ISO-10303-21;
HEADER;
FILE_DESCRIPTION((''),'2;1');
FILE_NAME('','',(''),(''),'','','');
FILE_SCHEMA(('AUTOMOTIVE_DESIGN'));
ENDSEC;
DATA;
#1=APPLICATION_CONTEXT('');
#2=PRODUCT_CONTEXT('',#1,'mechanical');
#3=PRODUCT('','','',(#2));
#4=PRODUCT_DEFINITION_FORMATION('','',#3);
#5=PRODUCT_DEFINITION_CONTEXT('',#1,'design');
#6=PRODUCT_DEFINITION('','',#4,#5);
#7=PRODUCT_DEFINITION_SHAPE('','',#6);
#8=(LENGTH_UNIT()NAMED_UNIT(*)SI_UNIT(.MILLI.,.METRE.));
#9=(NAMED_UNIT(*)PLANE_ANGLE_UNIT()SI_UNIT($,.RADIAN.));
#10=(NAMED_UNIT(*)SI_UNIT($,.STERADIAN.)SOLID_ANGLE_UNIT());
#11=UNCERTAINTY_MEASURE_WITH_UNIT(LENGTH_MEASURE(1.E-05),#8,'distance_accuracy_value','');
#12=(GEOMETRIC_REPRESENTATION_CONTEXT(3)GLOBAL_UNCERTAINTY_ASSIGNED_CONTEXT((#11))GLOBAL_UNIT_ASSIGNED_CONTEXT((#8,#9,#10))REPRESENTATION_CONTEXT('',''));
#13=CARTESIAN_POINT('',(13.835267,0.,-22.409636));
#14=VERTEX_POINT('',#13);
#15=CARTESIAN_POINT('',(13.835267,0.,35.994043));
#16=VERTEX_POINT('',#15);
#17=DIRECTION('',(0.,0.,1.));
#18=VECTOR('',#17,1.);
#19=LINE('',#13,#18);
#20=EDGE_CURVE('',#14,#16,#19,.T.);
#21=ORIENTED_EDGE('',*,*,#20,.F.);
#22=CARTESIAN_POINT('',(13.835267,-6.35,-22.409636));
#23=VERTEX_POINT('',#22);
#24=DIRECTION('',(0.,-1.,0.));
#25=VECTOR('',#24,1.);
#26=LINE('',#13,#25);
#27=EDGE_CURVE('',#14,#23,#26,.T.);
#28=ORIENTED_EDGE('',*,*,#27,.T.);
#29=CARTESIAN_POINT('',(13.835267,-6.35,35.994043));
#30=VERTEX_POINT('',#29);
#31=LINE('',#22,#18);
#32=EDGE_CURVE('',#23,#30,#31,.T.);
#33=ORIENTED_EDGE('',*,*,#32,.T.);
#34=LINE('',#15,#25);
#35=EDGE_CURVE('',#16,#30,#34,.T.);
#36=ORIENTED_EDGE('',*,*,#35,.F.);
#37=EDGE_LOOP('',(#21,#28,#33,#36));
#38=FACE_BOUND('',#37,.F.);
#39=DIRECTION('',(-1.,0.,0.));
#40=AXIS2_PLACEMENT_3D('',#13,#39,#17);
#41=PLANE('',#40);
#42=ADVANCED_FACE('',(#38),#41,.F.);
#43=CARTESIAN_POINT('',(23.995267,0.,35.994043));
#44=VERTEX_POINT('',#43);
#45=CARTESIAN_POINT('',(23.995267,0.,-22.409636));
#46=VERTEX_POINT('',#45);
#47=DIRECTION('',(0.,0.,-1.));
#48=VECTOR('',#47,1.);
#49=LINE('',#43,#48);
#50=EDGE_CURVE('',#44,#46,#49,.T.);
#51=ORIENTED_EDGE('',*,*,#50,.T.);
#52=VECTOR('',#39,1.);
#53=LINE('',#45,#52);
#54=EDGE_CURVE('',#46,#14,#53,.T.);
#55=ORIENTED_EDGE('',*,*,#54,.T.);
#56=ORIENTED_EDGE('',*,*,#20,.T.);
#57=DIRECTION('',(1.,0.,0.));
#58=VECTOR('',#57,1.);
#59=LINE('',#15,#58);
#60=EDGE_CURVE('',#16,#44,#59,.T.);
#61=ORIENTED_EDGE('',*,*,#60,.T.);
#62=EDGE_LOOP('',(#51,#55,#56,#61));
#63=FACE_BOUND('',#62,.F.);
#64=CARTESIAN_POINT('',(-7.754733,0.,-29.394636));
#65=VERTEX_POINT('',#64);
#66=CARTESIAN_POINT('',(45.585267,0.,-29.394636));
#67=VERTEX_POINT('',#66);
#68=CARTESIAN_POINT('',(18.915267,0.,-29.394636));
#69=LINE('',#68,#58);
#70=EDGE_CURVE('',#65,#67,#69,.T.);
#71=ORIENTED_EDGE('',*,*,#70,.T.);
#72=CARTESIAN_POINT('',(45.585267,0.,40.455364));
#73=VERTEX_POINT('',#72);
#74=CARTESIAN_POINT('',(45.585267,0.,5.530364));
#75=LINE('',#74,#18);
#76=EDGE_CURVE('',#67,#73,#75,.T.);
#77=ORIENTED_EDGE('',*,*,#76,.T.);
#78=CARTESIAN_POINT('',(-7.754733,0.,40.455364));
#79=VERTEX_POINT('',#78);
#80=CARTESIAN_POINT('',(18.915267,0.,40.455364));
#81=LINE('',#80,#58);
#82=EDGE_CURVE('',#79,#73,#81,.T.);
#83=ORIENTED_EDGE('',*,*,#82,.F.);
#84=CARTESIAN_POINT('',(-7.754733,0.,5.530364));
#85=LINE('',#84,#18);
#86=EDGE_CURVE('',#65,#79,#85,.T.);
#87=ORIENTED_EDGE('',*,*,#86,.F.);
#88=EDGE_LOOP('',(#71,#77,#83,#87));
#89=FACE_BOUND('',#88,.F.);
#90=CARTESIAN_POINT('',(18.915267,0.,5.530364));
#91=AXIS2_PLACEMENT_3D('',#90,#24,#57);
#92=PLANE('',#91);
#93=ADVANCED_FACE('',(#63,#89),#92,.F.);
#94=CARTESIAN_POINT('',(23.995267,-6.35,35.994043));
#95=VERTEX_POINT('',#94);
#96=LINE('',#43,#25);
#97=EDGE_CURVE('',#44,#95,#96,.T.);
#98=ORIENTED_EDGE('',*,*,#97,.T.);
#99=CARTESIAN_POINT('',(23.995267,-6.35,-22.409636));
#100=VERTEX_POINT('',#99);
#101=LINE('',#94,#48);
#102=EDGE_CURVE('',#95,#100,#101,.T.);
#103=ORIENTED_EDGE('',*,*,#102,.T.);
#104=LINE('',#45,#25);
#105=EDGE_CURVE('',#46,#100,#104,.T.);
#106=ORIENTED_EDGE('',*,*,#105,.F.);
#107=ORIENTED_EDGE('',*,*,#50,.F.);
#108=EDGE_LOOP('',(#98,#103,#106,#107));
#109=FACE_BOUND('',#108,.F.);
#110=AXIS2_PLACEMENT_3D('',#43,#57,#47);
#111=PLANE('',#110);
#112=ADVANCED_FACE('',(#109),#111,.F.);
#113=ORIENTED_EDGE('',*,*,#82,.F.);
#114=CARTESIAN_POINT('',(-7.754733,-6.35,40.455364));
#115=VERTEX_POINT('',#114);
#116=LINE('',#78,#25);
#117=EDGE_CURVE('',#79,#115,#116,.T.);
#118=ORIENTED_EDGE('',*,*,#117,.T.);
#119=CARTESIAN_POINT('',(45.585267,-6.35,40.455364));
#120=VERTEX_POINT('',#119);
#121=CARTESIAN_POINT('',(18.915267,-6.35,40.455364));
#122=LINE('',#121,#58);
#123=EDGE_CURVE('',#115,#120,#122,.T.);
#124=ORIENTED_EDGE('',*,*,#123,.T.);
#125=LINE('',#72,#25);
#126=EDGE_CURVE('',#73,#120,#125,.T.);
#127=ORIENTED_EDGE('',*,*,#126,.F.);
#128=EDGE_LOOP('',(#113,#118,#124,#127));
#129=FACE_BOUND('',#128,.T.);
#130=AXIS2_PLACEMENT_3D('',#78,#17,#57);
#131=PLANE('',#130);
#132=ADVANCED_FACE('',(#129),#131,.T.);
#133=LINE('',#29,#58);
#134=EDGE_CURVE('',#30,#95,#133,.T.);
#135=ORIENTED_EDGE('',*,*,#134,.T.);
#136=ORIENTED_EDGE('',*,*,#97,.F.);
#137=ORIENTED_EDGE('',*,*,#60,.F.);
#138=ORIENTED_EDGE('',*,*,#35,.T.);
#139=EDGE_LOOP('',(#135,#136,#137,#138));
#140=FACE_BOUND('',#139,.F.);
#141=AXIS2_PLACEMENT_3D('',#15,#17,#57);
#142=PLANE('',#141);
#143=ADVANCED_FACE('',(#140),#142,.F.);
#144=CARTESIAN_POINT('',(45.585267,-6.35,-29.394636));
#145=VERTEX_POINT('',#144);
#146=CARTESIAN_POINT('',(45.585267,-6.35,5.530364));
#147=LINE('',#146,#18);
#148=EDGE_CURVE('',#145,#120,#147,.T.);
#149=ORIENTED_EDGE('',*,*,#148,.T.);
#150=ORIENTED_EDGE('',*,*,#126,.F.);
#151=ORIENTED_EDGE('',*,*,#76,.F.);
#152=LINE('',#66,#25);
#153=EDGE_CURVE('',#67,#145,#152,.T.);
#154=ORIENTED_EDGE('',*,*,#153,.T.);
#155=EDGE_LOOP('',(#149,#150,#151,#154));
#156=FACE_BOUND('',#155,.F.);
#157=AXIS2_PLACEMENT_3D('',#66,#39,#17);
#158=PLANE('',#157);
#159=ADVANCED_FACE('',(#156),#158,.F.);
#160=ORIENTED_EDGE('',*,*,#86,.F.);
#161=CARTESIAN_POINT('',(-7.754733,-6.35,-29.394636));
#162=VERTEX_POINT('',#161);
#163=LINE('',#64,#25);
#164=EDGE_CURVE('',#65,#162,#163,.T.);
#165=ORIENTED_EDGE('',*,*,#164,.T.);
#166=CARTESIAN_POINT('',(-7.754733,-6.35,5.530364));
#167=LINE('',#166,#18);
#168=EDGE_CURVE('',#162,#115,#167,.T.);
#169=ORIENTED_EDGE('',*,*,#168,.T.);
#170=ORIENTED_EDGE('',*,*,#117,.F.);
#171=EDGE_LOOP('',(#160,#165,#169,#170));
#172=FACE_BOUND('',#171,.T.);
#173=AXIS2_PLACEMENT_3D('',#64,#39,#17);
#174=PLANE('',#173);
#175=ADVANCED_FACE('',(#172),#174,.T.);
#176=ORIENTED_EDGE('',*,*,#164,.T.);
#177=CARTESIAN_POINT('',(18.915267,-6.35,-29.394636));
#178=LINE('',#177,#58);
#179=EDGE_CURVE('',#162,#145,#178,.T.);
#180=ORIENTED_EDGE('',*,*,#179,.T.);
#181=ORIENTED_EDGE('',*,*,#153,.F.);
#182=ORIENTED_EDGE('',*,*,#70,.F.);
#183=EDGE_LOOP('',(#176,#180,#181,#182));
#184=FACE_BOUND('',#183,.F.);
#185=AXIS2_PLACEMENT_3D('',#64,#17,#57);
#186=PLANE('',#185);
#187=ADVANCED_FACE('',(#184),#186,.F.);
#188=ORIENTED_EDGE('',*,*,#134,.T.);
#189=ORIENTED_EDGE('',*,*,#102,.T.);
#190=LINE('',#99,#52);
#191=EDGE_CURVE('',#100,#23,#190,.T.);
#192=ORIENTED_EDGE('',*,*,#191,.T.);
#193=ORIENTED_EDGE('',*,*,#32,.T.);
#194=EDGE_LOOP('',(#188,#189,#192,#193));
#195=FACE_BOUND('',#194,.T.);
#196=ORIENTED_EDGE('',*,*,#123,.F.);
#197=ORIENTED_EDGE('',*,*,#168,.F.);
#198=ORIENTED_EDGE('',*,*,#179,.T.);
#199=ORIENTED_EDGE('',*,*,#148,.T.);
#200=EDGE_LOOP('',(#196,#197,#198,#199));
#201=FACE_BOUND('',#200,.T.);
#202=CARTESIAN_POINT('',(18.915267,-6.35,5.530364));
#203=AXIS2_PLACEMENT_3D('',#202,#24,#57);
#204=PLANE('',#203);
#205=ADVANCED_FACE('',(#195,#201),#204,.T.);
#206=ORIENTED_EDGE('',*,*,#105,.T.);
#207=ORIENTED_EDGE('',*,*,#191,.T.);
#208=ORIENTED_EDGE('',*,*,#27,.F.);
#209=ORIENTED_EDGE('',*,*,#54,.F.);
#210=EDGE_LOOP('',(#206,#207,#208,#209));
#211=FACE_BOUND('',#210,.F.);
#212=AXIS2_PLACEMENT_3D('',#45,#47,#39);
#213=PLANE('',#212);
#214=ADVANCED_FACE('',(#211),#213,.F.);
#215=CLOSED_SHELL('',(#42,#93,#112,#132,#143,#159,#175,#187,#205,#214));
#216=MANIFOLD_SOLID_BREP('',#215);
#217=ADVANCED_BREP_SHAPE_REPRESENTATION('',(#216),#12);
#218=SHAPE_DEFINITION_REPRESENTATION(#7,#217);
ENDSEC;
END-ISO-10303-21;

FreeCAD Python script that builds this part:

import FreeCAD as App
import Part
import Sketcher
Q = App.Units.Quantity

doc = App.newDocument("Part")
body = doc.addObject("PartDesign::Body", "Body")

# Sketch on XZ plane
sketch1 = body.newObject("Sketcher::SketchObject", "Sketch")
sketch1.AttachmentSupport = (doc.getObject("XZ_Plane"), [""])
sketch1.MapMode = "FlatFace"
sketch1.addGeometry([
    Part.LineSegment(App.Vector(-8, 40, 0), App.Vector(-8, -29, 0)),  # 0
    Part.LineSegment(App.Vector(-8, -29, 0), App.Vector(46, -29, 0)),  # 1
    Part.LineSegment(App.Vector(46, -29, 0), App.Vector(46, 40, 0)),  # 2
    Part.LineSegment(App.Vector(46, 40, 0), App.Vector(-8, 40, 0)),  # 3
    Part.LineSegment(App.Vector(24, 36, 0), App.Vector(24, -22, 0)),  # 4
    Part.LineSegment(App.Vector(24, -22, 0), App.Vector(14, -22, 0)),  # 5
    Part.LineSegment(App.Vector(14, -22, 0), App.Vector(14, 36, 0)),  # 6
    Part.LineSegment(App.Vector(14, 36, 0), App.Vector(24, 36, 0)),  # 7
], False)
sketch1.addConstraint([
    Sketcher.Constraint("Coincident", 0, 2, 1, 1),
    Sketcher.Constraint("Coincident", 1, 2, 2, 1),
    Sketcher.Constraint("Coincident", 2, 2, 3, 1),
    Sketcher.Constraint("Coincident", 3, 2, 0, 1),
    Sketcher.Constraint("Coincident", 4, 2, 5, 1),
    Sketcher.Constraint("Coincident", 5, 2, 6, 1),
    Sketcher.Constraint("Coincident", 6, 2, 7, 1),
    Sketcher.Constraint("Coincident", 7, 2, 4, 1),
    Sketcher.Constraint("Vertical", 0),
    Sketcher.Constraint("Horizontal", 1),
    Sketcher.Constraint("Vertical", 2),
    Sketcher.Constraint("Horizontal", 3),
    Sketcher.Constraint("Vertical", 4),
    Sketcher.Constraint("Horizontal", 5),
    Sketcher.Constraint("Vertical", 6),
    Sketcher.Constraint("Horizontal", 7),
    Sketcher.Constraint("DistanceX", 1, 1, 1, 2, Q("2.1 in")),
    Sketcher.Constraint("DistanceX", 5, 2, 5, 1, Q("0.4 in")),
    Sketcher.Constraint("DistanceY", 0, 2, 0, 1, Q("2.75 in")),
    Sketcher.Constraint("DistanceX", 4, 2, 1, 2, Q("0.85 in")),
    Sketcher.Constraint("DistanceY", 1, 2, 4, 2, Q("0.275 in")),
    Sketcher.Constraint("DistanceY", 4, 2, 4, 1, 58.403679),
    Sketcher.Constraint("DistanceX", 0, 2, -1, 1, 7.754733),
    Sketcher.Constraint("DistanceY", 0, 2, -1, 1, 29.394636),
])
pad1 = body.newObject("PartDesign::Pad", "Pad")
pad1.Profile = sketch1
pad1.Length = Q("0.25 in")

doc.recompute()
